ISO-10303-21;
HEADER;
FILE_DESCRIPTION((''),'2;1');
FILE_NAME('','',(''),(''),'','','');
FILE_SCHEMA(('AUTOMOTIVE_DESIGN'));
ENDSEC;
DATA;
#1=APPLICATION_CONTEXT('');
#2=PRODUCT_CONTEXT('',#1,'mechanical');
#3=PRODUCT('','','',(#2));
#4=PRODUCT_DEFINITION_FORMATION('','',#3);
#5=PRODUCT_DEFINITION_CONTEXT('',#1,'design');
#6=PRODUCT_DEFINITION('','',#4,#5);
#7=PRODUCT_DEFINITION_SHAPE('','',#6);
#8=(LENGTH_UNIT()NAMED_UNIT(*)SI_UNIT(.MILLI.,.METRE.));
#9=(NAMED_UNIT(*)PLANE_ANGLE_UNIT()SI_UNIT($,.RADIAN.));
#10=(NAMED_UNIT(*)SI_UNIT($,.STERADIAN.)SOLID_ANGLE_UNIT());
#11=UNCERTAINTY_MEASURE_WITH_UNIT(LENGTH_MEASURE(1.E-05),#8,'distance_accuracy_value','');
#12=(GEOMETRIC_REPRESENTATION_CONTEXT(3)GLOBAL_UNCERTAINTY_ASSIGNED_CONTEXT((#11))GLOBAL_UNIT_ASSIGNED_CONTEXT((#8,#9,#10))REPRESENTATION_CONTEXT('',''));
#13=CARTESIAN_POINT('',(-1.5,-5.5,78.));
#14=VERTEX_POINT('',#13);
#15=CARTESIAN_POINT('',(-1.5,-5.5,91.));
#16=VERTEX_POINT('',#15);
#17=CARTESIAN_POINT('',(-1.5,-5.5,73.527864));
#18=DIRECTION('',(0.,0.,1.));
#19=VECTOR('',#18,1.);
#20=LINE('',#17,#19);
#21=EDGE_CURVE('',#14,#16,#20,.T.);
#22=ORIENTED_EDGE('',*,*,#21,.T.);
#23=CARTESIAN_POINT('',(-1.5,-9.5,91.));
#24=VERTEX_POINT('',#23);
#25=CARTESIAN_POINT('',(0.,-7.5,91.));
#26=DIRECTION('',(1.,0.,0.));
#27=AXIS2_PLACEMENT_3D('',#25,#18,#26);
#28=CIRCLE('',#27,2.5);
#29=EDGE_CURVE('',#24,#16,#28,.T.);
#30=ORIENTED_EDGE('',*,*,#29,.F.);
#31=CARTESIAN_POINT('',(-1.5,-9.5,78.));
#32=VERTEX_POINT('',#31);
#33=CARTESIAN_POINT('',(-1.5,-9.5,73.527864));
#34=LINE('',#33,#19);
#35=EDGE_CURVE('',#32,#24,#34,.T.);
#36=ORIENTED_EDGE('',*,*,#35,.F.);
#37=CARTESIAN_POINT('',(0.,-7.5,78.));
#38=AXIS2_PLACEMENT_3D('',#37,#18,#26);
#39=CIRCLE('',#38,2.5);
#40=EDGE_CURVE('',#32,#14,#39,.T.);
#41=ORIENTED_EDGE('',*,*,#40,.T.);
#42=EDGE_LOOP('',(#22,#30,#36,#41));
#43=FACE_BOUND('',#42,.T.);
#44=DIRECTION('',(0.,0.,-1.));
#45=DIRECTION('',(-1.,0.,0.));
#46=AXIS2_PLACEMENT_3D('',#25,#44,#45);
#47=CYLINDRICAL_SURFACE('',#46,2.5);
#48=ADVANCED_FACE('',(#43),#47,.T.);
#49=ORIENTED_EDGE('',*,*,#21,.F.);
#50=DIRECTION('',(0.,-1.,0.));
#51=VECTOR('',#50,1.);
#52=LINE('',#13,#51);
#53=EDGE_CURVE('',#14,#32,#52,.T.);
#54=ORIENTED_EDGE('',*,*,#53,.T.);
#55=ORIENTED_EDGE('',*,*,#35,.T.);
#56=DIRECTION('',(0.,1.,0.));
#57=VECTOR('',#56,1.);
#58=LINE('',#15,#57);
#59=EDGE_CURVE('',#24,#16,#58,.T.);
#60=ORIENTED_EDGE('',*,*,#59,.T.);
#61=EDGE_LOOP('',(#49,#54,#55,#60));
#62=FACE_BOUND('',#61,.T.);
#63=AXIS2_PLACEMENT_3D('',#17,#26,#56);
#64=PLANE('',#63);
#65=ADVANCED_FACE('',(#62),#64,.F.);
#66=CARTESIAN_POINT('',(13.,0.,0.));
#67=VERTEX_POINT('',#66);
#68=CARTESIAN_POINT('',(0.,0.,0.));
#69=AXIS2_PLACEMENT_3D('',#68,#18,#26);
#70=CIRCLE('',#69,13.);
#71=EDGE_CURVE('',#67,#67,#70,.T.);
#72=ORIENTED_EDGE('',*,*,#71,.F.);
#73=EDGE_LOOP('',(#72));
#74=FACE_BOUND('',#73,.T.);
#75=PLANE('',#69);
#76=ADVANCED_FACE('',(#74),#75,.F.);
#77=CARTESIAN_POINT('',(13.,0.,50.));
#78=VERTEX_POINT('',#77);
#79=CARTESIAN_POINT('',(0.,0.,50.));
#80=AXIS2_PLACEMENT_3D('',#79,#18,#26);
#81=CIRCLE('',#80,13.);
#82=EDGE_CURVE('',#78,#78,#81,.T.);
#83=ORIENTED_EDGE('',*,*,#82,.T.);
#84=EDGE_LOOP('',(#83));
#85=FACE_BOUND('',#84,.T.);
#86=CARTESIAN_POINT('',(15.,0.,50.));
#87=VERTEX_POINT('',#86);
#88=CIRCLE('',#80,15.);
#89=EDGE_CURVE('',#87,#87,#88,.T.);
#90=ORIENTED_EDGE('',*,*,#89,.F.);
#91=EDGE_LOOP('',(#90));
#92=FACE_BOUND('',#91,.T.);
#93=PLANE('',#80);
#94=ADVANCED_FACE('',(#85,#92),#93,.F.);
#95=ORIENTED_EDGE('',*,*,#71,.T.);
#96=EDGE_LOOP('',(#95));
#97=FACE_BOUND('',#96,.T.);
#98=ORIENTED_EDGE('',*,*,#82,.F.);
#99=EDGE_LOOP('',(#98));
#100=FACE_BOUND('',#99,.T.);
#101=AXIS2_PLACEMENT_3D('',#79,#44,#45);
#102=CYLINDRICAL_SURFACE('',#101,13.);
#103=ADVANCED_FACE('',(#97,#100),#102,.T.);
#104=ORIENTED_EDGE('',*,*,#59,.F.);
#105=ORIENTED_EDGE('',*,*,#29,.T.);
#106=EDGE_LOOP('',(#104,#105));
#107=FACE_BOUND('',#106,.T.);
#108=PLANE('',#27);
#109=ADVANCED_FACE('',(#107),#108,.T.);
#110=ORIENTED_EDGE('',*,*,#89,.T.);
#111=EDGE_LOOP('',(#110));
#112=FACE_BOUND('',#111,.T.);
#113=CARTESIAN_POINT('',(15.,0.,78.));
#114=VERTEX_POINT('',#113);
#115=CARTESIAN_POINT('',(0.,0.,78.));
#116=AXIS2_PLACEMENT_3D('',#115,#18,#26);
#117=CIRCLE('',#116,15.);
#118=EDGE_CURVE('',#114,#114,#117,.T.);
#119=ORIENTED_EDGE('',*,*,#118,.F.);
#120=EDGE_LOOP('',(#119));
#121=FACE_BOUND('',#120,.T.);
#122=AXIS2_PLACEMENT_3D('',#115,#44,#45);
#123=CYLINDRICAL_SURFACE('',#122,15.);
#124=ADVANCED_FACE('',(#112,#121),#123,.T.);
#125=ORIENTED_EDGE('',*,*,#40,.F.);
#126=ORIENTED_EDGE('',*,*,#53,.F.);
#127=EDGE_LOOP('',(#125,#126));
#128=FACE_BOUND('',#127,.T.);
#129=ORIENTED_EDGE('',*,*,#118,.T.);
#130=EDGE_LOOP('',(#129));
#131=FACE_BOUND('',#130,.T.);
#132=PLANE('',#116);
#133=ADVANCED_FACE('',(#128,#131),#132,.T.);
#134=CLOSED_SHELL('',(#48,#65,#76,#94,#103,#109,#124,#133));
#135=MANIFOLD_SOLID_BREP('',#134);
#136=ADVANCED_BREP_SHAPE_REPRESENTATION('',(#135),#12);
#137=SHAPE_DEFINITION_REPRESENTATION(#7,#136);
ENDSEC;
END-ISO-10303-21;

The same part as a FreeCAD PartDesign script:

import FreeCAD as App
import Part
import Sketcher
Q = App.Units.Quantity

doc = App.newDocument("Part")
params = doc.addObject("Spreadsheet::Sheet", "Params")
for row, (alias, value) in enumerate([
    ("sketch1_diameter", "26 mm"),
    ("pad1_length", "50 mm"),
    ("sketch2_diameter", "30 mm"),
    ("pad2_length", "28 mm"),
    ("sketch3_diameter", "5 mm"),
    ("pad3_length", "13 mm"),
    ("sketch4_width", "2 mm"),
    ("sketch4_height", "4 mm"),
    ("pocket1_length", "13 mm"),
], start=1):
    params.set(f"A{row}", alias)
    params.set(f"B{row}", "=" + value)
    params.setAlias(f"B{row}", alias)

body = doc.addObject("PartDesign::Body", "Body")

sketch1 = doc.addObject("Sketcher::SketchObject", "Sketch")
body.addObject(sketch1)
sketch1.AttachmentSupport = (doc.XY_Plane, [""])
sketch1.MapMode = "FlatFace"
sketch1.addGeometry(Part.Circle(App.Vector(0, 0, 0), App.Vector(0, 0, 1), 13), False)
sketch1.addConstraint([
    Sketcher.Constraint("Coincident", 0, 3, -1, 1),
    Sketcher.Constraint("Diameter", 0, Q("26 mm")),
])
sketch1.setExpression("Constraints[1]", "Params.sketch1_diameter")
pad1 = doc.addObject("PartDesign::Pad", "Pad")
body.addObject(pad1)
pad1.Profile = sketch1
pad1.setExpression("Length", "Params.pad1_length")

sketch2 = doc.addObject("Sketcher::SketchObject", "Sketch001")
body.addObject(sketch2)
sketch2.AttachmentSupport = (doc.XY_Plane, [""])
sketch2.MapMode = "FlatFace"
sketch2.AttachmentOffset = App.Placement(App.Vector(0, 0, 50), App.Rotation())
sketch2.addGeometry(Part.Circle(App.Vector(0, 0, 0), App.Vector(0, 0, 1), 15), False)
sketch2.addConstraint([
    Sketcher.Constraint("Coincident", 0, 3, -1, 1),
    Sketcher.Constraint("Diameter", 0, Q("30 mm")),
])
sketch2.setExpression("Constraints[1]", "Params.sketch2_diameter")
pad2 = doc.addObject("PartDesign::Pad", "Pad001")
body.addObject(pad2)
pad2.Profile = sketch2
pad2.setExpression("Length", "Params.pad2_length")

sketch3 = doc.addObject("Sketcher::SketchObject", "Sketch002")
body.addObject(sketch3)
sketch3.AttachmentSupport = (doc.XY_Plane, [""])
sketch3.MapMode = "FlatFace"
sketch3.AttachmentOffset = App.Placement(App.Vector(0, 0, 78), App.Rotation())
sketch3.addGeometry(Part.Circle(App.Vector(0, -7.5, 0), App.Vector(0, 0, 1), 2.5), False)
sketch3.addConstraint([
    Sketcher.Constraint("PointOnObject", 0, 3, -2),
    Sketcher.Constraint("Diameter", 0, Q("5 mm")),
    Sketcher.Constraint("DistanceY", 0, 3, -1, 1, Q("7.5 mm")),
])
sketch3.setExpression("Constraints[1]", "Params.sketch3_diameter")
pad3 = doc.addObject("PartDesign::Pad", "Pad002")
body.addObject(pad3)
pad3.Profile = sketch3
pad3.setExpression("Length", "Params.pad3_length")

sketch4 = doc.addObject("Sketcher::SketchObject", "Sketch003")
body.addObject(sketch4)
sketch4.AttachmentSupport = (doc.XY_Plane, [""])
sketch4.MapMode = "FlatFace"
sketch4.AttachmentOffset = App.Placement(App.Vector(0, 0, 91), App.Rotation())
sketch4.addGeometry([
    Part.LineSegment(App.Vector(-3.5, -5.5, 0), App.Vector(-3.5, -9.5, 0)),
    Part.LineSegment(App.Vector(-3.5, -9.5, 0), App.Vector(-1.5, -9.5, 0)),
    Part.LineSegment(App.Vector(-1.5, -9.5, 0), App.Vector(-1.5, -5.5, 0)),
    Part.LineSegment(App.Vector(-1.5, -5.5, 0), App.Vector(-3.5, -5.5, 0)),
], False)
sketch4.addConstraint([
    Sketcher.Constraint("Coincident", 0, 2, 1, 1),
    Sketcher.Constraint("Coincident", 1, 2, 2, 1),
    Sketcher.Constraint("Coincident", 2, 2, 3, 1),
    Sketcher.Constraint("Coincident", 3, 2, 0, 1),
    Sketcher.Constraint("Vertical", 0),
    Sketcher.Constraint("Horizontal", 1),
    Sketcher.Constraint("Vertical", 2),
    Sketcher.Constraint("Horizontal", 3),
    Sketcher.Constraint("DistanceX", 1, 1, 1, 2, Q("2 mm")),
    Sketcher.Constraint("DistanceY", 0, 2, 0, 1, Q("4 mm")),
    Sketcher.Constraint("DistanceX", 0, 2, -1, 1, Q("3.5 mm")),
    Sketcher.Constraint("DistanceY", 0, 2, -1, 1, Q("9.5 mm")),
])
sketch4.setExpression("Constraints[8]", "Params.sketch4_width")
sketch4.setExpression("Constraints[9]", "Params.sketch4_height")
pocket1 = doc.addObject("PartDesign::Pocket", "Pocket")
body.addObject(pocket1)
pocket1.Profile = sketch4
pocket1.setExpression("Length", "Params.pocket1_length")

doc.recompute()
